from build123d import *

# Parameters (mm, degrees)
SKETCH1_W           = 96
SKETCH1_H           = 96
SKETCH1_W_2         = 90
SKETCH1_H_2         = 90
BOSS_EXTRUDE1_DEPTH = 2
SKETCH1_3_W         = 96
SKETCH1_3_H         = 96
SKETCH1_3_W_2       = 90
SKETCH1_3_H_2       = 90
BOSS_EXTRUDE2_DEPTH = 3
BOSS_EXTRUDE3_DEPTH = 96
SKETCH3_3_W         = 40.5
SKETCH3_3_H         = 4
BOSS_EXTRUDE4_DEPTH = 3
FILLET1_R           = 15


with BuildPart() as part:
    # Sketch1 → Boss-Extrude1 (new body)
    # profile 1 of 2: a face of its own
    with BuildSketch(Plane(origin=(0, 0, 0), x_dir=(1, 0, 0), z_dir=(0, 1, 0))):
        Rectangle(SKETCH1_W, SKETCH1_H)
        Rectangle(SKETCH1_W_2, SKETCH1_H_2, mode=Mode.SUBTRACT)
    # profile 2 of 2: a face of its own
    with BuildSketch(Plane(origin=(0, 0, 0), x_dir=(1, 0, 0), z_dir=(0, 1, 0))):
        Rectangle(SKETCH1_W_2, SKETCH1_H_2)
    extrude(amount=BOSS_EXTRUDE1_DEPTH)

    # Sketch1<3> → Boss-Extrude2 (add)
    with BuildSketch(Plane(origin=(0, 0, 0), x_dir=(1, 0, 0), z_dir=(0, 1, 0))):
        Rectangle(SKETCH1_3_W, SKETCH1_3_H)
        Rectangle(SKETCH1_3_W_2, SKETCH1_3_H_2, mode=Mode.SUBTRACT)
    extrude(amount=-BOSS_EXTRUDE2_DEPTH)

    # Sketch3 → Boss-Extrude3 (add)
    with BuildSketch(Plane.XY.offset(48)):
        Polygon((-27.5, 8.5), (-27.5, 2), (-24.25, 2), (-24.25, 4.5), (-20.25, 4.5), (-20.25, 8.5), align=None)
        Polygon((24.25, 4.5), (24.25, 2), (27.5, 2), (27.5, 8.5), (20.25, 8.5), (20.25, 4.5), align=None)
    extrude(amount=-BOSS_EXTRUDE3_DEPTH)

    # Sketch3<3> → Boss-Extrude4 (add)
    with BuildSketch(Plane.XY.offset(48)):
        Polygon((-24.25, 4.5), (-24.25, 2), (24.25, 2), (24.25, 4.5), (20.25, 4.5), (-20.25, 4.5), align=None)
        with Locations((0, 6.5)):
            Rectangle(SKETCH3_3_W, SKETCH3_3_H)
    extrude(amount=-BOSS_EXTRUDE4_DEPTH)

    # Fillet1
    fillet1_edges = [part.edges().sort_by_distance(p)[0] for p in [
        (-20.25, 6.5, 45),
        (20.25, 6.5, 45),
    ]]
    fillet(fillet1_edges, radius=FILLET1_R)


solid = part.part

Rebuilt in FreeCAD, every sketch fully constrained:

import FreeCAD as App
import Part
import Sketcher
from FreeCAD import Vector
Q = App.Units.Quantity


def edges_at(feature, points):
    """Names of the edges that pass closest to the given points."""
    edges = feature.Shape.Edges
    near = lambda p: min(range(len(edges)), key=lambda i: edges[i].distToShape(Part.Vertex(*p))[0])
    return sorted({f"Edge{near(p) + 1}" for p in points})

doc = App.newDocument("Part")
params = doc.addObject("Spreadsheet::Sheet", "Params")
for row, (alias, value) in enumerate([
    ("sketch1_width", "96 mm"),
    ("pad1_length", "2 mm"),
    ("sketch2_width", "96 mm"),
    ("sketch2_width2", "90 mm"),
    ("pad2_length", "3 mm"),
    ("sketch3_width", "4 mm"),
    ("sketch3_height", "6.5 mm"),
    ("sketch3_width2", "3.25 mm"),
    ("pad3_length", "96 mm"),
    ("sketch4_width", "4 mm"),
    ("sketch4_width2", "48.5 mm"),
    ("sketch4_height", "2.5 mm"),
    ("pad4_length", "3 mm"),
    ("fillet_radius", "15 mm"),
], start=1):
    params.set(f"A{row}", alias)
    params.set(f"B{row}", "=" + value)
    params.setAlias(f"B{row}", alias)

body = doc.addObject("PartDesign::Body", "Body")

# Sketch on XZ plane
sketch1 = doc.addObject("Sketcher::SketchObject", "Sketch")
body.addObject(sketch1)
sketch1.AttachmentSupport = (doc.XZ_Plane, [""])
sketch1.MapMode = "FlatFace"
sketch1.addGeometry([
    Part.LineSegment(Vector(-48, -48, 0), Vector(-48, 48, 0)),
    Part.LineSegment(Vector(-48, 48, 0), Vector(48, 48, 0)),
    Part.LineSegment(Vector(48, 48, 0), Vector(48, -48, 0)),
    Part.LineSegment(Vector(48, -48, 0), Vector(-48, -48, 0)),
], False)
sketch1.addConstraint([
    Sketcher.Constraint("Coincident", 0, 2, 1, 1),
    Sketcher.Constraint("Coincident", 1, 2, 2, 1),
    Sketcher.Constraint("Coincident", 2, 2, 3, 1),
    Sketcher.Constraint("Coincident", 3, 2, 0, 1),
    Sketcher.Constraint("Vertical", 0),
    Sketcher.Constraint("Horizontal", 1),
    Sketcher.Constraint("Vertical", 2),
    Sketcher.Constraint("Horizontal", 3),
    Sketcher.Constraint("Symmetric", 0, 2, 2, 2, -1, 1),
    Sketcher.Constraint("Equal", 3, 0),
    Sketcher.Constraint("DistanceX", 1, 1, 1, 2, Q("96 mm")),
])
sketch1.setExpression("Constraints[10]", "Params.sketch1_width")
pad1 = doc.addObject("PartDesign::Pad", "Pad")
body.addObject(pad1)
pad1.Profile = sketch1
pad1.setExpression("Length", "Params.pad1_length")
pad1.Reversed = True

# Sketch on XZ plane
sketch2 = doc.addObject("Sketcher::SketchObject", "Sketch001")
body.addObject(sketch2)
sketch2.AttachmentSupport = (doc.XZ_Plane, [""])
sketch2.MapMode = "FlatFace"
sketch2.addGeometry([
    Part.LineSegment(Vector(-48, -48, 0), Vector(-48, 48, 0)),  # 0
    Part.LineSegment(Vector(-48, 48, 0), Vector(48, 48, 0)),  # 1
    Part.LineSegment(Vector(48, 48, 0), Vector(48, -48, 0)),  # 2
    Part.LineSegment(Vector(48, -48, 0), Vector(-48, -48, 0)),  # 3
    Part.LineSegment(Vector(45, 45, 0), Vector(-45, 45, 0)),  # 4
    Part.LineSegment(Vector(-45, 45, 0), Vector(-45, -45, 0)),  # 5
    Part.LineSegment(Vector(-45, -45, 0), Vector(45, -45, 0)),  # 6
    Part.LineSegment(Vector(45, -45, 0), Vector(45, 45, 0)),  # 7
], False)
sketch2.addConstraint([
    Sketcher.Constraint("Coincident", 0, 2, 1, 1),
    Sketcher.Constraint("Coincident", 1, 2, 2, 1),
    Sketcher.Constraint("Coincident", 2, 2, 3, 1),
    Sketcher.Constraint("Coincident", 3, 2, 0, 1),
    Sketcher.Constraint("Coincident", 4, 2, 5, 1),
    Sketcher.Constraint("Coincident", 5, 2, 6, 1),
    Sketcher.Constraint("Coincident", 6, 2, 7, 1),
    Sketcher.Constraint("Coincident", 7, 2, 4, 1),
    Sketcher.Constraint("Vertical", 0),
    Sketcher.Constraint("Horizontal", 1),
    Sketcher.Constraint("Vertical", 2),
    Sketcher.Constraint("Horizontal", 3),
    Sketcher.Constraint("Horizontal", 4),
    Sketcher.Constraint("Vertical", 5),
    Sketcher.Constraint("Horizontal", 6),
    Sketcher.Constraint("Vertical", 7),
    Sketcher.Constraint("Symmetric", 0, 2, 2, 2, -1, 1),
    Sketcher.Constraint("Symmetric", 4, 2, 6, 2, -1, 1),
    Sketcher.Constraint("Equal", 3, 0),
    Sketcher.Constraint("Equal", 6, 5),
    Sketcher.Constraint("DistanceX", 1, 1, 1, 2, Q("96 mm")),
    Sketcher.Constraint("DistanceX", 4, 2, 4, 1, Q("90 mm")),
])
sketch2.setExpression("Constraints[20]", "Params.sketch2_width")
sketch2.setExpression("Constraints[21]", "Params.sketch2_width2")
pad2 = doc.addObject("PartDesign::Pad", "Pad001")
body.addObject(pad2)
pad2.Profile = sketch2
pad2.setExpression("Length", "Params.pad2_length")

# Sketch on XY plane
sketch3 = doc.addObject("Sketcher::SketchObject", "Sketch002")
body.addObject(sketch3)
sketch3.AttachmentSupport = (doc.XY_Plane, [""])
sketch3.MapMode = "FlatFace"
sketch3.AttachmentOffset = App.Placement(Vector(0, 0, 48), App.Rotation())
sketch3.addGeometry([
    Part.LineSegment(Vector(-27.5, 8.5, 0), Vector(-27.5, 2, 0)),  # 0
    Part.LineSegment(Vector(-27.5, 2, 0), Vector(-24.25, 2, 0)),  # 1
    Part.LineSegment(Vector(-24.25, 2, 0), Vector(-24.25, 4.5, 0)),  # 2
    Part.LineSegment(Vector(-24.25, 4.5, 0), Vector(-20.25, 4.5, 0)),  # 3
    Part.LineSegment(Vector(-20.25, 4.5, 0), Vector(-20.25, 8.5, 0)),  # 4
    Part.LineSegment(Vector(-20.25, 8.5, 0), Vector(-27.5, 8.5, 0)),  # 5
    Part.LineSegment(Vector(24.25, 4.5, 0), Vector(24.25, 2, 0)),  # 6
    Part.LineSegment(Vector(24.25, 2, 0), Vector(27.5, 2, 0)),  # 7
    Part.LineSegment(Vector(27.5, 2, 0), Vector(27.5, 8.5, 0)),  # 8
    Part.LineSegment(Vector(27.5, 8.5, 0), Vector(20.25, 8.5, 0)),  # 9
    Part.LineSegment(Vector(20.25, 8.5, 0), Vector(20.25, 4.5, 0)),  # 10
    Part.LineSegment(Vector(20.25, 4.5, 0), Vector(24.25, 4.5, 0)),  # 11
], False)
sketch3.addConstraint([
    Sketcher.Constraint("Coincident", 0, 2, 1, 1),
    Sketcher.Constraint("Coincident", 1, 2, 2, 1),
    Sketcher.Constraint("Coincident", 2, 2, 3, 1),
    Sketcher.Constraint("Coincident", 3, 2, 4, 1),
    Sketcher.Constraint("Coincident", 4, 2, 5, 1),
    Sketcher.Constraint("Coincident", 5, 2, 0, 1),
    Sketcher.Constraint("Coincident", 6, 2, 7, 1),
    Sketcher.Constraint("Coincident", 7, 2, 8, 1),
    Sketcher.Constraint("Coincident", 8, 2, 9, 1),
    Sketcher.Constraint("Coincident", 9, 2, 10, 1),
    Sketcher.Constraint("Coincident", 10, 2, 11, 1),
    Sketcher.Constraint("Coincident", 11, 2, 6, 1),
    Sketcher.Constraint("Vertical", 0),
    Sketcher.Constraint("Horizontal", 1),
    Sketcher.Constraint("Vertical", 2),
    Sketcher.Constraint("Horizontal", 3),
    Sketcher.Constraint("Vertical", 4),
    Sketcher.Constraint("Horizontal", 5),
    Sketcher.Constraint("Vertical", 6),
    Sketcher.Constraint("Horizontal", 7),
    Sketcher.Constraint("Vertical", 8),
    Sketcher.Constraint("Horizontal", 9),
    Sketcher.Constraint("Vertical", 10),
    Sketcher.Constraint("Horizontal", 11),
    Sketcher.Constraint("Symmetric", 1, 2, 6, 2, -2),
    Sketcher.Constraint("Symmetric", 5, 2, 8, 2, -2),
    Sketcher.Constraint("Symmetric", 3, 2, 10, 2, -2),
    Sketcher.Constraint("Equal", 11, 4),
    Sketcher.Constraint("DistanceX", 3, 1, 3, 2, Q("4 mm")),
    Sketcher.Constraint("DistanceY", 0, 2, 0, 1, Q("6.5 mm")),
    Sketcher.Constraint("DistanceY", -1, 1, 0, 2, Q("2 mm")),
    Sketcher.Constraint("DistanceX", 1, 1, 1, 2, Q("3.25 mm")),
    Sketcher.Constraint("DistanceX", 0, 2, -1, 1, Q("27.5 mm")),
])
sketch3.setExpression("Constraints[28]", "Params.sketch3_width")
sketch3.setExpression("Constraints[29]", "Params.sketch3_height")
sketch3.setExpression("Constraints[31]", "Params.sketch3_width2")
pad3 = doc.addObject("PartDesign::Pad", "Pad002")
body.addObject(pad3)
pad3.Profile = sketch3
pad3.setExpression("Length", "Params.pad3_length")
pad3.Reversed = True

# Sketch on XY plane
sketch4 = doc.addObject("Sketcher::SketchObject", "Sketch003")
body.addObject(sketch4)
sketch4.AttachmentSupport = (doc.XY_Plane, [""])
sketch4.MapMode = "FlatFace"
sketch4.AttachmentOffset = App.Placement(Vector(0, 0, 48), App.Rotation())
sketch4.addGeometry([
    Part.LineSegment(Vector(-24.25, 4.5, 0), Vector(-24.25, 2, 0)),  # 0
    Part.LineSegment(Vector(-24.25, 2, 0), Vector(24.25, 2, 0)),  # 1
    Part.LineSegment(Vector(24.25, 2, 0), Vector(24.25, 4.5, 0)),  # 2
    Part.LineSegment(Vector(24.25, 4.5, 0), Vector(20.25, 4.5, 0)),  # 3
    Part.LineSegment(Vector(20.25, 4.5, 0), Vector(20.25, 8.5, 0)),  # 4
    Part.LineSegment(Vector(20.25, 8.5, 0), Vector(-20.25, 8.5, 0)),  # 5
    Part.LineSegment(Vector(-20.25, 8.5, 0), Vector(-20.25, 4.5, 0)),  # 6
    Part.LineSegment(Vector(-20.25, 4.5, 0), Vector(-24.25, 4.5, 0)),  # 7
], False)
sketch4.addConstraint([
    Sketcher.Constraint("Coincident", 0, 2, 1, 1),
    Sketcher.Constraint("Coincident", 1, 2, 2, 1),
    Sketcher.Constraint("Coincident", 2, 2, 3, 1),
    Sketcher.Constraint("Coincident", 3, 2, 4, 1),
    Sketcher.Constraint("Coincident", 4, 2, 5, 1),
    Sketcher.Constraint("Coincident", 5, 2, 6, 1),
    Sketcher.Constraint("Coincident", 6, 2, 7, 1),
    Sketcher.Constraint("Coincident", 7, 2, 0, 1),
    Sketcher.Constraint("Vertical", 0),
    Sketcher.Constraint("Horizontal", 1),
    Sketcher.Constraint("Vertical", 2),
    Sketcher.Constraint("Horizontal", 3),
    Sketcher.Constraint("Vertical", 4),
    Sketcher.Constraint("Horizontal", 5),
    Sketcher.Constraint("Vertical", 6),
    Sketcher.Constraint("Horizontal", 7),
    Sketcher.Constraint("Symmetric", 3, 2, 6, 2, -2),
    Sketcher.Constraint("Equal", 3, 7),
    Sketcher.Constraint("Equal", 7, 4),
    Sketcher.Constraint("DistanceX", 3, 2, 3, 1, Q("4 mm")),
    Sketcher.Constraint("DistanceX", 1, 1, 1, 2, Q("48.5 mm")),
    Sketcher.Constraint("DistanceY", 0, 2, 0, 1, Q("2.5 mm")),
    Sketcher.Constraint("DistanceY", -1, 1, 0, 2, Q("2 mm")),
])
sketch4.setExpression("Constraints[19]", "Params.sketch4_width")
sketch4.setExpression("Constraints[20]", "Params.sketch4_width2")
sketch4.setExpression("Constraints[21]", "Params.sketch4_height")
pad4 = doc.addObject("PartDesign::Pad", "Pad003")
body.addObject(pad4)
pad4.Profile = sketch4
pad4.setExpression("Length", "Params.pad4_length")
pad4.Reversed = True
doc.recompute()

fillet = doc.addObject("PartDesign::Fillet", "Fillet")
body.addObject(fillet)
fillet.Base = (pad4, edges_at(pad4, [(-20.25, 6.5, 45), (20.25, 6.5, 45)]))
fillet.setExpression("Radius", "Params.fillet_radius")

doc.recompute()
